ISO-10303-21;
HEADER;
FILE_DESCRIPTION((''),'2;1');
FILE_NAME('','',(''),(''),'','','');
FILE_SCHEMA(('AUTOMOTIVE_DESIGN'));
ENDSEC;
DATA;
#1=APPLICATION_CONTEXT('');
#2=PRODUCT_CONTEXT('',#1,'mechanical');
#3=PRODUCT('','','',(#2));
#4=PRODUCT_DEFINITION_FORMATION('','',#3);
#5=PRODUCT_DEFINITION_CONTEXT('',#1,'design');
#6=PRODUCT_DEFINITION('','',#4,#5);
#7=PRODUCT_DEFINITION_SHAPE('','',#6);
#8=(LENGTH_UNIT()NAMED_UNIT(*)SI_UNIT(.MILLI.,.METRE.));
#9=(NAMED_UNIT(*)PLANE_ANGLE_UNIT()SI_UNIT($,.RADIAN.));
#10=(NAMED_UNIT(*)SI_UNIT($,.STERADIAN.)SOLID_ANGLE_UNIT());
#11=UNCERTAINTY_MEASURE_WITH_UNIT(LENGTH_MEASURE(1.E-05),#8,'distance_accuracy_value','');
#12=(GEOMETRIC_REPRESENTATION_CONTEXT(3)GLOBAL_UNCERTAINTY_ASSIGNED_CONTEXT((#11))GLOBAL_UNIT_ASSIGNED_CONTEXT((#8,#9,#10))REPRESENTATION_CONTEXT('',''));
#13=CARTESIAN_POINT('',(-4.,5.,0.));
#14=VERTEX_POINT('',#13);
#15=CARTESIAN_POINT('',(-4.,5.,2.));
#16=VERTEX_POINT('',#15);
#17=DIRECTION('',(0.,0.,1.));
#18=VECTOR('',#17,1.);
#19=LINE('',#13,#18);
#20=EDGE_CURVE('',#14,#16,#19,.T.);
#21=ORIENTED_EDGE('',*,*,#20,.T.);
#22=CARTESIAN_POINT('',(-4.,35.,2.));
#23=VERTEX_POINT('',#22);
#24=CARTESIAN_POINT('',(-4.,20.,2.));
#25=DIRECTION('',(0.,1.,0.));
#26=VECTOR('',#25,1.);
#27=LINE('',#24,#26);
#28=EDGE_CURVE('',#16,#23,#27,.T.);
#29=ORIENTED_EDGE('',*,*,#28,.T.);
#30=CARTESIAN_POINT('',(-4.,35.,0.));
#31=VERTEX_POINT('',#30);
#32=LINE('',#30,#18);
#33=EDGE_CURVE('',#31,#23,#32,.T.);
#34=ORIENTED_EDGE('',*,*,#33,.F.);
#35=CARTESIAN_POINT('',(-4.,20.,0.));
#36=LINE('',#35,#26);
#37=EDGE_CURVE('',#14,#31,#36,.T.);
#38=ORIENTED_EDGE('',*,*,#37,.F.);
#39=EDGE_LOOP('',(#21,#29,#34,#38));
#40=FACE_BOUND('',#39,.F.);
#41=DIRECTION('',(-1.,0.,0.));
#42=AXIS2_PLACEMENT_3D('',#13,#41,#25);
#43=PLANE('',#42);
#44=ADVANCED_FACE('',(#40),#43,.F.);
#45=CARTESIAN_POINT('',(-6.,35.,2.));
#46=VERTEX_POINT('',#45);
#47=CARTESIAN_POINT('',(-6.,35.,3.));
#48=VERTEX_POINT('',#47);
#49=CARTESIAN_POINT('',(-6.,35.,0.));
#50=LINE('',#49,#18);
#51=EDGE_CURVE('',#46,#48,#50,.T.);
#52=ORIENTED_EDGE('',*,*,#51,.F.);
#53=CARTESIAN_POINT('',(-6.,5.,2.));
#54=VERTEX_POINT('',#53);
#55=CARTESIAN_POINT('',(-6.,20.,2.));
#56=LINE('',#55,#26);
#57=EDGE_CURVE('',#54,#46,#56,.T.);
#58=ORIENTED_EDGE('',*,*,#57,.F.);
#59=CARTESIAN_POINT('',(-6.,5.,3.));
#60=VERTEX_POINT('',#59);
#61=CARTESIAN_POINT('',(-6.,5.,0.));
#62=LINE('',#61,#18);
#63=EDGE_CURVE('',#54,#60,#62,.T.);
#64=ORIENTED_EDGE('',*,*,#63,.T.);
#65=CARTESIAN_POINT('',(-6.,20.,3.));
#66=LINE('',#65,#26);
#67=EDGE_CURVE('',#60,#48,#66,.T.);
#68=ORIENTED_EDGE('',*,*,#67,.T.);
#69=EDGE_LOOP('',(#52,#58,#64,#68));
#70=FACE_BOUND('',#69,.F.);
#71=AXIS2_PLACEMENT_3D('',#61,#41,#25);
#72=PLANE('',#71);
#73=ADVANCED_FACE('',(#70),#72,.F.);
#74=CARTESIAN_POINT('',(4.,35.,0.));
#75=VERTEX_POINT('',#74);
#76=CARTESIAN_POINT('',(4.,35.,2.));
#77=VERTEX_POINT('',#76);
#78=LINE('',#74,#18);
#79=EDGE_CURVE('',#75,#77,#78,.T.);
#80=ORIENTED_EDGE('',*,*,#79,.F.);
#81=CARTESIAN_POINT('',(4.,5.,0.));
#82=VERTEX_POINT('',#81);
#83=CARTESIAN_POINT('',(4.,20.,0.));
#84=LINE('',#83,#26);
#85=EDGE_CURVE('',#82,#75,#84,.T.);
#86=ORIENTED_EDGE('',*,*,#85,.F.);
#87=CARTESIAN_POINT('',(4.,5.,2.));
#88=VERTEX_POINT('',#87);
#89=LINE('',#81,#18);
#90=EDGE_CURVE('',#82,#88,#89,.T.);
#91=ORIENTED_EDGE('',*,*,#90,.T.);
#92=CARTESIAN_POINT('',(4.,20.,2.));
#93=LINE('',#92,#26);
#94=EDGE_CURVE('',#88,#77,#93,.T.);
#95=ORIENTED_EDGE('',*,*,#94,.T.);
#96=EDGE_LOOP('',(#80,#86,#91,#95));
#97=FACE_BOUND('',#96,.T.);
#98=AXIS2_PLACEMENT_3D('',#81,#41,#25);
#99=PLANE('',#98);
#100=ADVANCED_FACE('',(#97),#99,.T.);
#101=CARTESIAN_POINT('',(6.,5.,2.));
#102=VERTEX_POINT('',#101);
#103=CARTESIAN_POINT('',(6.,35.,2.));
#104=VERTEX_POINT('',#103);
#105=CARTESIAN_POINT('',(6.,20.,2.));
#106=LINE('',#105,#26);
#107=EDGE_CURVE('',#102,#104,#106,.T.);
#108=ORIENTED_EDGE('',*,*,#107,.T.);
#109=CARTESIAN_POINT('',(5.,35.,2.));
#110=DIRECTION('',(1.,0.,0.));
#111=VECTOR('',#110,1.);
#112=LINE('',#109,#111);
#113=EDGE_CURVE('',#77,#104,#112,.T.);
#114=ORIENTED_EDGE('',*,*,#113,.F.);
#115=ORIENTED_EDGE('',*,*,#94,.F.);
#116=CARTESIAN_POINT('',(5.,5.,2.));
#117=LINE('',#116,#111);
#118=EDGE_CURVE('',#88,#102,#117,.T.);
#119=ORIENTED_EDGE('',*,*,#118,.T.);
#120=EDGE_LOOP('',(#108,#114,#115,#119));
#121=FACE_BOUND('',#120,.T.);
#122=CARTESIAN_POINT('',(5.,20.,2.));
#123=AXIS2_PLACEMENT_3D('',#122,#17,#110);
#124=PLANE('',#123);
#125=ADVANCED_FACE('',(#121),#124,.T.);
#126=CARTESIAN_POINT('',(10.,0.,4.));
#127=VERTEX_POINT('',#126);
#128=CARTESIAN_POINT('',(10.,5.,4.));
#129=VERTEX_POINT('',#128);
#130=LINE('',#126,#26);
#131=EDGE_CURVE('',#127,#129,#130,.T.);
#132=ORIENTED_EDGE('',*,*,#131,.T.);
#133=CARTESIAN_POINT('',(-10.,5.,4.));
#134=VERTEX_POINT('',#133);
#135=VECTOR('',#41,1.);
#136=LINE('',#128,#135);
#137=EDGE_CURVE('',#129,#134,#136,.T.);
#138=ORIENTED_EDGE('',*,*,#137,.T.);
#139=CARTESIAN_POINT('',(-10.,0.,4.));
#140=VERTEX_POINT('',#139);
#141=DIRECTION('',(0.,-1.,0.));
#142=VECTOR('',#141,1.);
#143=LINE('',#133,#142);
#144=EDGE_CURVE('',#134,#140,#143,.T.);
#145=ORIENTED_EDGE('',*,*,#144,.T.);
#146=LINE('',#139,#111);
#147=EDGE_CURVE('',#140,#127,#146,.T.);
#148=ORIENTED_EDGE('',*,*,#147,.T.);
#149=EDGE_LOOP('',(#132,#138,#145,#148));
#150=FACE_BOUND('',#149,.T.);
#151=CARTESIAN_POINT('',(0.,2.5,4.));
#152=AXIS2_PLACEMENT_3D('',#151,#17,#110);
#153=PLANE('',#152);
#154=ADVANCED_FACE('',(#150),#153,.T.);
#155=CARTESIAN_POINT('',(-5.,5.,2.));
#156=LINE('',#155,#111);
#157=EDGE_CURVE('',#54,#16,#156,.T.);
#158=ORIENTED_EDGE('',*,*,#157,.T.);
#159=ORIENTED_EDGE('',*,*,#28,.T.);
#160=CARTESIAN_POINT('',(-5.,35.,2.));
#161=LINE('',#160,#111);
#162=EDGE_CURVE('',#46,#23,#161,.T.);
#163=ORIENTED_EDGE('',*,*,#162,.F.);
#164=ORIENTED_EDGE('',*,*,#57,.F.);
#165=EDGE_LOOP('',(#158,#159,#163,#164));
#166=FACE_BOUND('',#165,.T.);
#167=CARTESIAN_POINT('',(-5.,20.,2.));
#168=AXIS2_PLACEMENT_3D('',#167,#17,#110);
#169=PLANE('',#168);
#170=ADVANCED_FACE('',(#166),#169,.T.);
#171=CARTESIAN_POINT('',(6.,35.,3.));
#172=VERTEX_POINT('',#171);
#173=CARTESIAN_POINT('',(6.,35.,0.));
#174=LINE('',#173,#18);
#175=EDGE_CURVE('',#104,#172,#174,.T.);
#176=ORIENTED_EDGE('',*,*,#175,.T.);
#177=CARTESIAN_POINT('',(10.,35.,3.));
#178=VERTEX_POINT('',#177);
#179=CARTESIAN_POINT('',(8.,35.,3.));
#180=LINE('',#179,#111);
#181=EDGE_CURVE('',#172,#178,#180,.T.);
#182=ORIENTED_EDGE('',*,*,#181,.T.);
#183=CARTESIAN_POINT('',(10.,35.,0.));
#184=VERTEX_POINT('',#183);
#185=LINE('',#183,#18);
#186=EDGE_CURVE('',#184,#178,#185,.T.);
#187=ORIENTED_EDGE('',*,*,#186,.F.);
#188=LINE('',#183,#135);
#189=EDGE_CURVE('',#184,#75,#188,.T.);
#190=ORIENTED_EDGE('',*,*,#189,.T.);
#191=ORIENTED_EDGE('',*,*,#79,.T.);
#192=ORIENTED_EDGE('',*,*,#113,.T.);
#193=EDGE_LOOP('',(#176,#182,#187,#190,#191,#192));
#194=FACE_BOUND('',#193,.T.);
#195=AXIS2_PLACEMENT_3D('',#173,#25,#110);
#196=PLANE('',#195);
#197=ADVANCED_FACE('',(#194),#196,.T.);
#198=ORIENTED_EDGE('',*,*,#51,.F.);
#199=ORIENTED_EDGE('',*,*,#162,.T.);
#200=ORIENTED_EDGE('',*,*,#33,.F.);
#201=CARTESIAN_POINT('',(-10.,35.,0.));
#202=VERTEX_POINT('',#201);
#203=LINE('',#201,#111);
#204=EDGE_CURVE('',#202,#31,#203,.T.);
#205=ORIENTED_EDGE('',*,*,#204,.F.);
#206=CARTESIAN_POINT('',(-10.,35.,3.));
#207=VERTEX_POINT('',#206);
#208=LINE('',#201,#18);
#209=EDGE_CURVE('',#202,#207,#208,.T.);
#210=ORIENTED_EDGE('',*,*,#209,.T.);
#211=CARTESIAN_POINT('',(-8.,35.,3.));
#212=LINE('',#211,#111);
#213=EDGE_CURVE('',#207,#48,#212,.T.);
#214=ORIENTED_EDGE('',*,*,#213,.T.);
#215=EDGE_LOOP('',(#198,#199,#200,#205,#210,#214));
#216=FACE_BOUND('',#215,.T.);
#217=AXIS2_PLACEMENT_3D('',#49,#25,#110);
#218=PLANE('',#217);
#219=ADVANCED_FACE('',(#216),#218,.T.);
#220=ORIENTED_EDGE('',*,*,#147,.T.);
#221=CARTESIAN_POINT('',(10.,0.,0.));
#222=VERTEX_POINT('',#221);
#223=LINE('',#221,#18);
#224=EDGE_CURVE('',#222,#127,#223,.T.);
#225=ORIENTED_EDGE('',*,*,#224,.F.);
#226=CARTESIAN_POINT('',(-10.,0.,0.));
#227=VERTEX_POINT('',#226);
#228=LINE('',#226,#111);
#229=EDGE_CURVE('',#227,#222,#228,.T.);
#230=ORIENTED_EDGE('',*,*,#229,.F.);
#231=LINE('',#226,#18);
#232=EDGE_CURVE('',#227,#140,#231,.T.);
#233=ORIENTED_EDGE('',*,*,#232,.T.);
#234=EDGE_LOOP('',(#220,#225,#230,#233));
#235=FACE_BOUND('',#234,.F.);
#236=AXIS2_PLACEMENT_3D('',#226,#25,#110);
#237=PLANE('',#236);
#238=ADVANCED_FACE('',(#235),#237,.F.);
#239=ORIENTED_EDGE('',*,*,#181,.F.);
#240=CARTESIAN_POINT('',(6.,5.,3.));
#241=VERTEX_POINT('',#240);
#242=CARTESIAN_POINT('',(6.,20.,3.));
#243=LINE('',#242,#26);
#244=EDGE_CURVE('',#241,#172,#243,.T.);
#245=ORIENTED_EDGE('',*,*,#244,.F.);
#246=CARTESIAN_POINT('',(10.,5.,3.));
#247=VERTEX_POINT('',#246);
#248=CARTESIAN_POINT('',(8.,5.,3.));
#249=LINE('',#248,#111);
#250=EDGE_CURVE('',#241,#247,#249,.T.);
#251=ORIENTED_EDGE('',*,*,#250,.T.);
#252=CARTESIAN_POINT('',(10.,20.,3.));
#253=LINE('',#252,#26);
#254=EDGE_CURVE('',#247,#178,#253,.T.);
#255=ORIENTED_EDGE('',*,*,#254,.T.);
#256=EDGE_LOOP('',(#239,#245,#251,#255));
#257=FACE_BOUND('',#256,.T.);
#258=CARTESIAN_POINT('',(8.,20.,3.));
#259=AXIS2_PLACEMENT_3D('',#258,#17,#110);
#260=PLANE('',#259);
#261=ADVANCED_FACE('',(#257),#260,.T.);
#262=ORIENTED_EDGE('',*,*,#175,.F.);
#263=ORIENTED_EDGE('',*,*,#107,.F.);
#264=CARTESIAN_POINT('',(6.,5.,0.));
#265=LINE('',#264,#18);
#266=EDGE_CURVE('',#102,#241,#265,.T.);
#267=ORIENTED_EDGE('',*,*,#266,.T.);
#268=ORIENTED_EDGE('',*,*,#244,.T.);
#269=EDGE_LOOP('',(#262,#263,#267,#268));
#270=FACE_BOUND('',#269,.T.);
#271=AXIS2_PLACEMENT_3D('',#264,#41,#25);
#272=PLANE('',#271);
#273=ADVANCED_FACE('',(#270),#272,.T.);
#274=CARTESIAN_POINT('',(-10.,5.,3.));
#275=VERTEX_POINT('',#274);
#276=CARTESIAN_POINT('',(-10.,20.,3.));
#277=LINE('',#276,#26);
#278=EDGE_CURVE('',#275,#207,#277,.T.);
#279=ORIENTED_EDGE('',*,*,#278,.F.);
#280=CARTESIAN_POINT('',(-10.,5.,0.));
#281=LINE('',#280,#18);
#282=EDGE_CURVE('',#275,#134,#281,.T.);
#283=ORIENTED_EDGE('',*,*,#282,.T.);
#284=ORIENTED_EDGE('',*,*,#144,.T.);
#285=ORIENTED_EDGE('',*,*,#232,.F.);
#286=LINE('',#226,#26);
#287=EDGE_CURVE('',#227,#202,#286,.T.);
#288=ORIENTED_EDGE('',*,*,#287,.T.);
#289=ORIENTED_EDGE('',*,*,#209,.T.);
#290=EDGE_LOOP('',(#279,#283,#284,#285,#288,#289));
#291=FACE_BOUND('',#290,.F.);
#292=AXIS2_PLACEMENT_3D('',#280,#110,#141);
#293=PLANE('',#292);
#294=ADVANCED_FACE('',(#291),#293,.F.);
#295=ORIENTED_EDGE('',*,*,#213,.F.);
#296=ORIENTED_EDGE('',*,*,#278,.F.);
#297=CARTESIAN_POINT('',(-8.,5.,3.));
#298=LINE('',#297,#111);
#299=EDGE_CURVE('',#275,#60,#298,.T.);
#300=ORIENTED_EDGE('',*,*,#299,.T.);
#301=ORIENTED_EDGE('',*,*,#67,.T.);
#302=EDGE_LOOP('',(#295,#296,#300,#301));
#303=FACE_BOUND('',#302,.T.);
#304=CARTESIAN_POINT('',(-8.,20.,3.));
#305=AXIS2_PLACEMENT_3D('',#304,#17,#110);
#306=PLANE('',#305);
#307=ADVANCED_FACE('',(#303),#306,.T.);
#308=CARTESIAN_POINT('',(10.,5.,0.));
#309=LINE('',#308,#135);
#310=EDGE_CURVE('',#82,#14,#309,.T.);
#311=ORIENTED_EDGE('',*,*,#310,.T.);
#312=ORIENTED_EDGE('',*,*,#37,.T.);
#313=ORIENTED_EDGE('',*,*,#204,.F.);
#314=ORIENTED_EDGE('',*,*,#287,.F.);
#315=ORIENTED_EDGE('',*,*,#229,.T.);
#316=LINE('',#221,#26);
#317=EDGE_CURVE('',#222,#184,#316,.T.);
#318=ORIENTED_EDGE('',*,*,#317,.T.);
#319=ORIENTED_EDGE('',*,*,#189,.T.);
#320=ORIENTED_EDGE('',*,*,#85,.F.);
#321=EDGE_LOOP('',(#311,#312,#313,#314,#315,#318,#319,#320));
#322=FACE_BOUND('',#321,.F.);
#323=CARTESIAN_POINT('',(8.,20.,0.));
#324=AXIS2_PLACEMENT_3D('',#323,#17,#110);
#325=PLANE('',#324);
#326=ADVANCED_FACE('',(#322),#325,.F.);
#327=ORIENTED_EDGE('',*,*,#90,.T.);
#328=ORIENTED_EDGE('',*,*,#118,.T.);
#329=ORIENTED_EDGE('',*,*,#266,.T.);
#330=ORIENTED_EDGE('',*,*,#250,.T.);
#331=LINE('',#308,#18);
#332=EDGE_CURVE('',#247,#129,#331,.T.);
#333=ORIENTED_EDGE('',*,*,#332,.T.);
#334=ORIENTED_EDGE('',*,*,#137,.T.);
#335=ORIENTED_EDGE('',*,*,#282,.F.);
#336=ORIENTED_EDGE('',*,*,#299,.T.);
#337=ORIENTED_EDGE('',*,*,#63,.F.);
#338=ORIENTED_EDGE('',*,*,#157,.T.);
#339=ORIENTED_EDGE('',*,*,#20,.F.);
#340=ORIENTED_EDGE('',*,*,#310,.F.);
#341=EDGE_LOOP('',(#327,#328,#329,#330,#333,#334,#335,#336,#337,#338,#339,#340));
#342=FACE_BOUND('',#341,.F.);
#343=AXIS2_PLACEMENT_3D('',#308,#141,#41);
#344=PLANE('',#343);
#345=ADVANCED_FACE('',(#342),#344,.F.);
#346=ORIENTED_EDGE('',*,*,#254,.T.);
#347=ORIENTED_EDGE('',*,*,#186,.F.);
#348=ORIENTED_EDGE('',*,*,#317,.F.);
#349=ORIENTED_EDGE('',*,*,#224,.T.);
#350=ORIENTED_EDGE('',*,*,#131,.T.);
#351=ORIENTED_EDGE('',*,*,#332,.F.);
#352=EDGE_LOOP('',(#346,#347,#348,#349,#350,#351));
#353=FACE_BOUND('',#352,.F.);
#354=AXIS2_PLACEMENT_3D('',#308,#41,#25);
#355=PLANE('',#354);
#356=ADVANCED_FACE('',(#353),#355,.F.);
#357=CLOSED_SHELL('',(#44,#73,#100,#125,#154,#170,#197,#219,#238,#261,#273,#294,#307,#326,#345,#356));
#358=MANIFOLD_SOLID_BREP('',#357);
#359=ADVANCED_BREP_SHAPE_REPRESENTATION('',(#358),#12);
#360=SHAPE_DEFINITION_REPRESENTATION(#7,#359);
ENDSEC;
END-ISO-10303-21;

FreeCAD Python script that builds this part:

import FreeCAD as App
import Part
import Sketcher


def add_polygon(sketch, points):
    """Adds a closed chain of lines whose ends are joined by coincident constraints."""
    first, n = sketch.GeometryCount, len(points)
    for a, b in zip(points, points[1:] + points[:1]):
        sketch.addGeometry(Part.LineSegment(App.Vector(*a, 0), App.Vector(*b, 0)), False)
    for i in range(n):
        sketch.addConstraint(Sketcher.Constraint("Coincident", first + i, 2, first + (i + 1) % n, 1))

doc = App.newDocument("Part")
body = doc.addObject("PartDesign::Body", "Body")

# Sketch on XY plane
sketch1 = body.newObject("Sketcher::SketchObject", "Sketch")
sketch1.AttachmentSupport = (doc.getObject("XY_Plane"), [""])
sketch1.MapMode = "FlatFace"
add_polygon(sketch1, [(-10, 5), (-10, 0), (10, 0), (10, 5)])  # lines 0-3
sketch1.addConstraint([
    Sketcher.Constraint("Vertical", 0),
    Sketcher.Constraint("Horizontal", 1),
    Sketcher.Constraint("Vertical", 2),
    Sketcher.Constraint("Horizontal", 3),
    Sketcher.Constraint("Symmetric", 0, 2, 1, 2, -1, 1),
    Sketcher.Constraint("DistanceX", 1, 1, 1, 2, 20.0),
    Sketcher.Constraint("DistanceY", 0, 2, 0, 1, 5.0),
])
pad1 = body.newObject("PartDesign::Pad", "Pad")
pad1.Profile = sketch1
pad1.Length = 4

# Sketch on XY plane
sketch2 = body.newObject("Sketcher::SketchObject", "Sketch001")
sketch2.AttachmentSupport = (doc.getObject("XY_Plane"), [""])
sketch2.MapMode = "FlatFace"
add_polygon(sketch2, [(-6, 35), (-6, 5), (-4, 5), (-4, 35)])  # lines 0-3
add_polygon(sketch2, [(4, 35), (4, 5), (6, 5), (6, 35)])  # lines 4-7
sketch2.addConstraint([
    Sketcher.Constraint("Vertical", 0),
    Sketcher.Constraint("Horizontal", 1),
    Sketcher.Constraint("Vertical", 2),
    Sketcher.Constraint("Horizontal", 3),
    Sketcher.Constraint("Vertical", 4),
    Sketcher.Constraint("Horizontal", 5),
    Sketcher.Constraint("Vertical", 6),
    Sketcher.Constraint("Horizontal", 7),
    Sketcher.Constraint("Symmetric", 1, 2, 4, 2, -2),
    Sketcher.Constraint("Symmetric", 3, 2, 6, 2, -2),
    Sketcher.Constraint("DistanceX", 1, 1, 1, 2, 2.0),
    Sketcher.Constraint("DistanceY", 0, 2, 0, 1, 30.0),
    Sketcher.Constraint("DistanceX", 0, 2, -1, 1, 6.0),
    Sketcher.Constraint("DistanceY", -1, 1, 0, 2, 5.0),
])
pad2 = body.newObject("PartDesign::Pad", "Pad001")
pad2.Profile = sketch2
pad2.Length = 2

# Sketch on XY plane
sketch3 = body.newObject("Sketcher::SketchObject", "Sketch002")
sketch3.AttachmentSupport = (doc.getObject("XY_Plane"), [""])
sketch3.MapMode = "FlatFace"
add_polygon(sketch3, [(6, 35), (6, 5), (10, 5), (10, 35)])  # lines 0-3
add_polygon(sketch3, [(-10, 35), (-10, 5), (-6, 5), (-6, 35)])  # lines 4-7
sketch3.addConstraint([
    Sketcher.Constraint("Vertical", 0),
    Sketcher.Constraint("Horizontal", 1),
    Sketcher.Constraint("Vertical", 2),
    Sketcher.Constraint("Horizontal", 3),
    Sketcher.Constraint("Vertical", 4),
    Sketcher.Constraint("Horizontal", 5),
    Sketcher.Constraint("Vertical", 6),
    Sketcher.Constraint("Horizontal", 7),
    Sketcher.Constraint("Symmetric", 1, 2, 4, 2, -2),
    Sketcher.Constraint("Symmetric", 3, 2, 6, 2, -2),
    Sketcher.Constraint("DistanceX", 1, 1, 1, 2, 4.0),
    Sketcher.Constraint("DistanceY", 0, 2, 0, 1, 30.0),
    Sketcher.Constraint("DistanceX", -1, 1, 0, 2, 6.0),
    Sketcher.Constraint("DistanceY", -1, 1, 0, 2, 5.0),
])
pad3 = body.newObject("PartDesign::Pad", "Pad002")
pad3.Profile = sketch3
pad3.Length = 3

doc.recompute()
